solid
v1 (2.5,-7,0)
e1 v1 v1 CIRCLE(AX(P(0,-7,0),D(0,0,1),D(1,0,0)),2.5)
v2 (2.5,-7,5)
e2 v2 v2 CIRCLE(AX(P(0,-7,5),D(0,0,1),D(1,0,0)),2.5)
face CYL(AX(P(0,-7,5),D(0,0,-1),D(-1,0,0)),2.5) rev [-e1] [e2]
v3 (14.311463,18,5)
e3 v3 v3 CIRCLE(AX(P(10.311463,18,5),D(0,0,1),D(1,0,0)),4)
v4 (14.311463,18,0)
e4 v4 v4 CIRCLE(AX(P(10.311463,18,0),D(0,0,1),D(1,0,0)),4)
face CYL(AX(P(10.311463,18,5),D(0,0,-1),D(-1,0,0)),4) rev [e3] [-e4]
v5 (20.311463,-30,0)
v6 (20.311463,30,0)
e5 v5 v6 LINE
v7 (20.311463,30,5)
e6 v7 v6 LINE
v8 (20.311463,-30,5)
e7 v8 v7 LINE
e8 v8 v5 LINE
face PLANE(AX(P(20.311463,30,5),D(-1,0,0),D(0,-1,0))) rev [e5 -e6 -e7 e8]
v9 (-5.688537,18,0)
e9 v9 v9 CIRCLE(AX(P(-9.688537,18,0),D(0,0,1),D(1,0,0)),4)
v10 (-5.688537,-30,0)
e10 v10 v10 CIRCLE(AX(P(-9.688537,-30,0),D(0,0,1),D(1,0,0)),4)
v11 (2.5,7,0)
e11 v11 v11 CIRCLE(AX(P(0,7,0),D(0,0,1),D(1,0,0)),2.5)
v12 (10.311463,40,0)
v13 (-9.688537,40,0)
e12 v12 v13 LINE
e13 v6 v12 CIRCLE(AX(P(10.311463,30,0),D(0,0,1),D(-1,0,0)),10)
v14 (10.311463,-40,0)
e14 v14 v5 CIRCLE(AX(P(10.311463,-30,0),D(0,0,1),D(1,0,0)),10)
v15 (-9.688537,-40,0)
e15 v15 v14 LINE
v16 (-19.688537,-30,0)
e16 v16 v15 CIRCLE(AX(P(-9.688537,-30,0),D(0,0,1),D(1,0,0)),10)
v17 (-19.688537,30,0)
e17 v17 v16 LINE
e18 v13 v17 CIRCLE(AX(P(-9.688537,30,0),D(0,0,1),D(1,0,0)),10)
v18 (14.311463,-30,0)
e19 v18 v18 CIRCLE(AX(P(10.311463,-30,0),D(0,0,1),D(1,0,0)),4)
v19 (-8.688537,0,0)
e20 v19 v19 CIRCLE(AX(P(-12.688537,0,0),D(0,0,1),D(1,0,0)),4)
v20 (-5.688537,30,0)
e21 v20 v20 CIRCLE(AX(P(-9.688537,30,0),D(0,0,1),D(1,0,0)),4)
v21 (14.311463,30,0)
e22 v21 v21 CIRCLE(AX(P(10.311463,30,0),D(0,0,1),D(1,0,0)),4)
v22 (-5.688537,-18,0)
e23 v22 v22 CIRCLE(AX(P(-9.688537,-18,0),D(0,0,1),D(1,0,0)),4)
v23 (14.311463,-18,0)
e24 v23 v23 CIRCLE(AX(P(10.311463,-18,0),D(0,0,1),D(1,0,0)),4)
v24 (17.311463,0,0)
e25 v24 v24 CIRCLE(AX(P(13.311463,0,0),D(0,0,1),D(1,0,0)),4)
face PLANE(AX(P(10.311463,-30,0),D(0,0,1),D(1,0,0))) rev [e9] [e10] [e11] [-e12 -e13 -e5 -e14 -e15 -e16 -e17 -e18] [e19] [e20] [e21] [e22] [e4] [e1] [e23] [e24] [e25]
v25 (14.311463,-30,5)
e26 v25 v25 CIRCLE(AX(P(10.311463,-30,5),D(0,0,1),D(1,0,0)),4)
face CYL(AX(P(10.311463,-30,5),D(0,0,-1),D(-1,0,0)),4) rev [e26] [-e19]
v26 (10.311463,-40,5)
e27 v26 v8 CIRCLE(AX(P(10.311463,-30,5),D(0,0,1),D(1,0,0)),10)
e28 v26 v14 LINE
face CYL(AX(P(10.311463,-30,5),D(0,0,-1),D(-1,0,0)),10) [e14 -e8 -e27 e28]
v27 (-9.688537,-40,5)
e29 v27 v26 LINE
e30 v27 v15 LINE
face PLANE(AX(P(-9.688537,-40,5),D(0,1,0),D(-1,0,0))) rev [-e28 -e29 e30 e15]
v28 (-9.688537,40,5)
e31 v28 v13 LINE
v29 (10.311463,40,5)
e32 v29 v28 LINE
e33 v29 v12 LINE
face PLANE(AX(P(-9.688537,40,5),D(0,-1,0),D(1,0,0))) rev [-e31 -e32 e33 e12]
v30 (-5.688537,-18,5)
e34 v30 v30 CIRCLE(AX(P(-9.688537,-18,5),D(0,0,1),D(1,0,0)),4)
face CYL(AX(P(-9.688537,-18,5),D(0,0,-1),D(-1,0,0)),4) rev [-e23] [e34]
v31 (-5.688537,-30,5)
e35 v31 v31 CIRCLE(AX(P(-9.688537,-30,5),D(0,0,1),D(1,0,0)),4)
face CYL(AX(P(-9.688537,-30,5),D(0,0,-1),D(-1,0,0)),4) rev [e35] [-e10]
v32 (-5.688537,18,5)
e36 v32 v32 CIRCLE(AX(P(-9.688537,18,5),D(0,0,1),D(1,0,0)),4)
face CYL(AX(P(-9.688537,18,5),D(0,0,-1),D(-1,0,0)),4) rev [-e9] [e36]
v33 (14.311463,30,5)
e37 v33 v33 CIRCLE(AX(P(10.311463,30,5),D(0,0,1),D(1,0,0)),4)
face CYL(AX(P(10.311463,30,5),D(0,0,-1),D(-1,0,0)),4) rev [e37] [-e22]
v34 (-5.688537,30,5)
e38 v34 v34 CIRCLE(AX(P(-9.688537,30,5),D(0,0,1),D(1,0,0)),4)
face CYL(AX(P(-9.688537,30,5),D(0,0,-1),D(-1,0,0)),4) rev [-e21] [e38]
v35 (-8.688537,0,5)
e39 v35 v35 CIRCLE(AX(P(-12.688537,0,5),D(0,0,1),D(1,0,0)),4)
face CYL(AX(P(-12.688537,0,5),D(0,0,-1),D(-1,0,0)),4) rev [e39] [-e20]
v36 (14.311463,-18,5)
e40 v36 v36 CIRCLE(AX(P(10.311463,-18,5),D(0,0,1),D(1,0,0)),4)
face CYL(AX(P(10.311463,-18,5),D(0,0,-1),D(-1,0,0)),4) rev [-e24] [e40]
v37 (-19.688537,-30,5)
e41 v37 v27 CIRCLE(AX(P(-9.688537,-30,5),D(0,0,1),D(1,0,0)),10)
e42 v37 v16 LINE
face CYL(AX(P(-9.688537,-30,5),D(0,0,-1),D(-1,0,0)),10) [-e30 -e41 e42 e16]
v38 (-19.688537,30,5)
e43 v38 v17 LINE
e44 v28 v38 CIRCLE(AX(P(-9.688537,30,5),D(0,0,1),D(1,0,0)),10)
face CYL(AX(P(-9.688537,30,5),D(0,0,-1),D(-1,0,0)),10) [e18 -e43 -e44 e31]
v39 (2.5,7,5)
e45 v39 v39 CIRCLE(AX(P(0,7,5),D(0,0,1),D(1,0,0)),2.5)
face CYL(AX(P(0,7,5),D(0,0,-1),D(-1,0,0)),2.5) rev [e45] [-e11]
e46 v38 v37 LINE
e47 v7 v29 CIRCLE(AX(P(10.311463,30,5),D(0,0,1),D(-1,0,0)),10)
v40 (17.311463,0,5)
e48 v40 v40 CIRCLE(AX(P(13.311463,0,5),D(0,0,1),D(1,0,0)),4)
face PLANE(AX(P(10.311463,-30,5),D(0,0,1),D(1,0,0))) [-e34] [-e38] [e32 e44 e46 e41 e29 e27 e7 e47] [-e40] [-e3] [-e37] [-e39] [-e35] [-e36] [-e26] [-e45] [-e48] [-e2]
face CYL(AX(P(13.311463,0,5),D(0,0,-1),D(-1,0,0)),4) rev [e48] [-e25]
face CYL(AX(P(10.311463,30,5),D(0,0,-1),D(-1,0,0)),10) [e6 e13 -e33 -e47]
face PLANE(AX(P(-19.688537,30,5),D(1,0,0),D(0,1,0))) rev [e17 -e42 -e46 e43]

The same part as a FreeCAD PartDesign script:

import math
import FreeCAD as App
import Part
import Sketcher

V = App.Vector
Q = App.Units.Quantity

doc = App.newDocument("Part")
params = doc.addObject("Spreadsheet::Sheet", "Params")
for row, (alias, value) in enumerate([
    ("sketch1_diameter", "8 mm"),
    ("sketch1_diameter2", "5 mm"),
    ("sketch1_radius", "10 mm"),
    ("sketch1_width", "20 mm"),
    ("sketch1_height", "60 mm"),
    ("pad1_length", "5 mm"),
], start=1):
    params.set(f"A{row}", alias)
    params.set(f"B{row}", "=" + value)
    params.setAlias(f"B{row}", alias)

body = doc.addObject("PartDesign::Body", "Body")

# Sketch on XY plane
sketch1 = body.newObject("Sketcher::SketchObject", "Sketch")
sketch1.AttachmentSupport = (doc.getObject("XY_Plane"), [""])
sketch1.MapMode = "FlatFace"
sketch1.addGeometry(Part.LineSegment(V(10.3, 40, 0), V(-9.7, 40, 0)), False)
sketch1.addGeometry(Part.ArcOfCircle(Part.Circle(V(-9.7, 30, 0), V(0, 0, 1), 10), math.radians(90), math.radians(180)), False)
sketch1.addGeometry(Part.LineSegment(V(-19.7, 30, 0), V(-19.7, -30, 0)), False)
sketch1.addGeometry(Part.ArcOfCircle(Part.Circle(V(-9.7, -30, 0), V(0, 0, 1), 10), math.radians(180), math.radians(270)), False)
sketch1.addGeometry(Part.LineSegment(V(-9.7, -40, 0), V(10.3, -40, 0)), False)
sketch1.addGeometry(Part.ArcOfCircle(Part.Circle(V(10.3, -30, 0), V(0, 0, 1), 10), math.radians(-90), math.radians(0)), False)
sketch1.addGeometry(Part.LineSegment(V(20.3, -30, 0), V(20.3, 30, 0)), False)
sketch1.addGeometry(Part.ArcOfCircle(Part.Circle(V(10.3, 30, 0), V(0, 0, 1), 10), math.radians(0), math.radians(90)), False)
sketch1.addGeometry(Part.Circle(V(10.3, -30, 0), V(0, 0, 1), 4), False)
sketch1.addGeometry(Part.Circle(V(10.3, -18, 0), V(0, 0, 1), 4), False)
sketch1.addGeometry(Part.Circle(V(-9.7, -30, 0), V(0, 0, 1), 4), False)
sketch1.addGeometry(Part.Circle(V(-9.7, -18, 0), V(0, 0, 1), 4), False)
sketch1.addGeometry(Part.Circle(V(0, -7, 0), V(0, 0, 1), 2.5), False)
sketch1.addGeometry(Part.Circle(V(13.3, 0, 0), V(0, 0, 1), 4), False)
sketch1.addGeometry(Part.Circle(V(10.3, 18, 0), V(0, 0, 1), 4), False)
sketch1.addGeometry(Part.Circle(V(10.3, 30, 0), V(0, 0, 1), 4), False)
sketch1.addGeometry(Part.Circle(V(0, 7, 0), V(0, 0, 1), 2.5), False)
sketch1.addGeometry(Part.Circle(V(-12.7, 0, 0), V(0, 0, 1), 4), False)
sketch1.addGeometry(Part.Circle(V(-9.7, 18, 0), V(0, 0, 1), 4), False)
sketch1.addGeometry(Part.Circle(V(-9.7, 30, 0), V(0, 0, 1), 4), False)
sketch1.addConstraint(Sketcher.Constraint("Tangent", 0, 2, 1, 1))
sketch1.addConstraint(Sketcher.Constraint("Tangent", 1, 2, 2, 1))
sketch1.addConstraint(Sketcher.Constraint("Tangent", 2, 2, 3, 1))
sketch1.addConstraint(Sketcher.Constraint("Tangent", 3, 2, 4, 1))
sketch1.addConstraint(Sketcher.Constraint("Tangent", 4, 2, 5, 1))
sketch1.addConstraint(Sketcher.Constraint("Tangent", 5, 2, 6, 1))
sketch1.addConstraint(Sketcher.Constraint("Tangent", 6, 2, 7, 1))
sketch1.addConstraint(Sketcher.Constraint("Tangent", 7, 2, 0, 1))
sketch1.addConstraint(Sketcher.Constraint("Horizontal", 0))
sketch1.addConstraint(Sketcher.Constraint("Vertical", 2))
sketch1.addConstraint(Sketcher.Constraint("Horizontal", 4))
sketch1.addConstraint(Sketcher.Constraint("Vertical", 6))
sketch1.addConstraint(Sketcher.Constraint("Coincident", 8, 3, 5, 3))
sketch1.addConstraint(Sketcher.Constraint("Coincident", 10, 3, 3, 3))
sketch1.addConstraint(Sketcher.Constraint("Coincident", 15, 3, 7, 3))
sketch1.addConstraint(Sketcher.Constraint("Coincident", 19, 3, 1, 3))
sketch1.addConstraint(Sketcher.Constraint("Equal", 1, 3))
sketch1.addConstraint(Sketcher.Constraint("Equal", 3, 5))
sketch1.addConstraint(Sketcher.Constraint("Equal", 5, 7))
sketch1.addConstraint(Sketcher.Constraint("Equal", 8, 9))
sketch1.addConstraint(Sketcher.Constraint("Equal", 9, 10))
sketch1.addConstraint(Sketcher.Constraint("Equal", 10, 11))
sketch1.addConstraint(Sketcher.Constraint("Equal", 11, 13))
sketch1.addConstraint(Sketcher.Constraint("Equal", 13, 14))
sketch1.addConstraint(Sketcher.Constraint("Equal", 14, 15))
sketch1.addConstraint(Sketcher.Constraint("Equal", 12, 16))
sketch1.addConstraint(Sketcher.Constraint("Equal", 15, 17))
sketch1.addConstraint(Sketcher.Constraint("Equal", 17, 18))
sketch1.addConstraint(Sketcher.Constraint("Equal", 18, 19))
sketch1.addConstraint(Sketcher.Constraint("Symmetric", 12, 3, 16, 3, -1, 1))
sketch1.addConstraint(Sketcher.Constraint("Symmetric", 9, 3, 14, 3, -1))
sketch1.addConstraint(Sketcher.Constraint("Symmetric", 11, 3, 18, 3, -1))
sketch1.addConstraint(Sketcher.Constraint("PointOnObject", 12, 3, -2))
sketch1.addConstraint(Sketcher.Constraint("PointOnObject", 13, 3, -1))
sketch1.addConstraint(Sketcher.Constraint("PointOnObject", 17, 3, -1))
sketch1.addConstraint(Sketcher.Constraint("Horizontal", 9, 3, 11, 3))
sketch1.addConstraint(Sketcher.Constraint("Vertical", 8, 3, 9, 3))
sketch1.addConstraint(Sketcher.Constraint("Vertical", 10, 3, 11, 3))
sketch1.addConstraint(Sketcher.Constraint("Diameter", 8, Q("8 mm")))
sketch1.addConstraint(Sketcher.Constraint("Diameter", 12, Q("5 mm")))
sketch1.addConstraint(Sketcher.Constraint("Radius", 1, Q("10 mm")))
sketch1.addConstraint(Sketcher.Constraint("DistanceX", 0, 2, 0, 1, Q("20 mm")))
sketch1.addConstraint(Sketcher.Constraint("DistanceY", 2, 2, 2, 1, Q("60 mm")))
sketch1.addConstraint(Sketcher.Constraint("DistanceY", -1, 1, 1, 3, Q("30 mm")))
sketch1.addConstraint(Sketcher.Constraint("DistanceY", 9, 3, -1, 1, Q("18 mm")))
sketch1.addConstraint(Sketcher.Constraint("DistanceY", 12, 3, -1, 1, Q("7 mm")))
sketch1.addConstraint(Sketcher.Constraint("DistanceX", 9, 3, 13, 3, Q("3 mm")))
sketch1.addConstraint(Sketcher.Constraint("DistanceX", 17, 3, 11, 3, Q("3 mm")))
sketch1.addConstraint(Sketcher.Constraint("DistanceX", 1, 3, -1, 1, Q("9.688537 mm")))
sketch1.setExpression("Constraints[38]", "Params.sketch1_diameter")
sketch1.setExpression("Constraints[39]", "Params.sketch1_diameter2")
sketch1.setExpression("Constraints[40]", "Params.sketch1_radius")
sketch1.setExpression("Constraints[41]", "Params.sketch1_width")
sketch1.setExpression("Constraints[42]", "Params.sketch1_height")
pad1 = body.newObject("PartDesign::Pad", "Pad")
pad1.Profile = sketch1
pad1.setExpression("Length", "Params.pad1_length")

doc.recompute()
